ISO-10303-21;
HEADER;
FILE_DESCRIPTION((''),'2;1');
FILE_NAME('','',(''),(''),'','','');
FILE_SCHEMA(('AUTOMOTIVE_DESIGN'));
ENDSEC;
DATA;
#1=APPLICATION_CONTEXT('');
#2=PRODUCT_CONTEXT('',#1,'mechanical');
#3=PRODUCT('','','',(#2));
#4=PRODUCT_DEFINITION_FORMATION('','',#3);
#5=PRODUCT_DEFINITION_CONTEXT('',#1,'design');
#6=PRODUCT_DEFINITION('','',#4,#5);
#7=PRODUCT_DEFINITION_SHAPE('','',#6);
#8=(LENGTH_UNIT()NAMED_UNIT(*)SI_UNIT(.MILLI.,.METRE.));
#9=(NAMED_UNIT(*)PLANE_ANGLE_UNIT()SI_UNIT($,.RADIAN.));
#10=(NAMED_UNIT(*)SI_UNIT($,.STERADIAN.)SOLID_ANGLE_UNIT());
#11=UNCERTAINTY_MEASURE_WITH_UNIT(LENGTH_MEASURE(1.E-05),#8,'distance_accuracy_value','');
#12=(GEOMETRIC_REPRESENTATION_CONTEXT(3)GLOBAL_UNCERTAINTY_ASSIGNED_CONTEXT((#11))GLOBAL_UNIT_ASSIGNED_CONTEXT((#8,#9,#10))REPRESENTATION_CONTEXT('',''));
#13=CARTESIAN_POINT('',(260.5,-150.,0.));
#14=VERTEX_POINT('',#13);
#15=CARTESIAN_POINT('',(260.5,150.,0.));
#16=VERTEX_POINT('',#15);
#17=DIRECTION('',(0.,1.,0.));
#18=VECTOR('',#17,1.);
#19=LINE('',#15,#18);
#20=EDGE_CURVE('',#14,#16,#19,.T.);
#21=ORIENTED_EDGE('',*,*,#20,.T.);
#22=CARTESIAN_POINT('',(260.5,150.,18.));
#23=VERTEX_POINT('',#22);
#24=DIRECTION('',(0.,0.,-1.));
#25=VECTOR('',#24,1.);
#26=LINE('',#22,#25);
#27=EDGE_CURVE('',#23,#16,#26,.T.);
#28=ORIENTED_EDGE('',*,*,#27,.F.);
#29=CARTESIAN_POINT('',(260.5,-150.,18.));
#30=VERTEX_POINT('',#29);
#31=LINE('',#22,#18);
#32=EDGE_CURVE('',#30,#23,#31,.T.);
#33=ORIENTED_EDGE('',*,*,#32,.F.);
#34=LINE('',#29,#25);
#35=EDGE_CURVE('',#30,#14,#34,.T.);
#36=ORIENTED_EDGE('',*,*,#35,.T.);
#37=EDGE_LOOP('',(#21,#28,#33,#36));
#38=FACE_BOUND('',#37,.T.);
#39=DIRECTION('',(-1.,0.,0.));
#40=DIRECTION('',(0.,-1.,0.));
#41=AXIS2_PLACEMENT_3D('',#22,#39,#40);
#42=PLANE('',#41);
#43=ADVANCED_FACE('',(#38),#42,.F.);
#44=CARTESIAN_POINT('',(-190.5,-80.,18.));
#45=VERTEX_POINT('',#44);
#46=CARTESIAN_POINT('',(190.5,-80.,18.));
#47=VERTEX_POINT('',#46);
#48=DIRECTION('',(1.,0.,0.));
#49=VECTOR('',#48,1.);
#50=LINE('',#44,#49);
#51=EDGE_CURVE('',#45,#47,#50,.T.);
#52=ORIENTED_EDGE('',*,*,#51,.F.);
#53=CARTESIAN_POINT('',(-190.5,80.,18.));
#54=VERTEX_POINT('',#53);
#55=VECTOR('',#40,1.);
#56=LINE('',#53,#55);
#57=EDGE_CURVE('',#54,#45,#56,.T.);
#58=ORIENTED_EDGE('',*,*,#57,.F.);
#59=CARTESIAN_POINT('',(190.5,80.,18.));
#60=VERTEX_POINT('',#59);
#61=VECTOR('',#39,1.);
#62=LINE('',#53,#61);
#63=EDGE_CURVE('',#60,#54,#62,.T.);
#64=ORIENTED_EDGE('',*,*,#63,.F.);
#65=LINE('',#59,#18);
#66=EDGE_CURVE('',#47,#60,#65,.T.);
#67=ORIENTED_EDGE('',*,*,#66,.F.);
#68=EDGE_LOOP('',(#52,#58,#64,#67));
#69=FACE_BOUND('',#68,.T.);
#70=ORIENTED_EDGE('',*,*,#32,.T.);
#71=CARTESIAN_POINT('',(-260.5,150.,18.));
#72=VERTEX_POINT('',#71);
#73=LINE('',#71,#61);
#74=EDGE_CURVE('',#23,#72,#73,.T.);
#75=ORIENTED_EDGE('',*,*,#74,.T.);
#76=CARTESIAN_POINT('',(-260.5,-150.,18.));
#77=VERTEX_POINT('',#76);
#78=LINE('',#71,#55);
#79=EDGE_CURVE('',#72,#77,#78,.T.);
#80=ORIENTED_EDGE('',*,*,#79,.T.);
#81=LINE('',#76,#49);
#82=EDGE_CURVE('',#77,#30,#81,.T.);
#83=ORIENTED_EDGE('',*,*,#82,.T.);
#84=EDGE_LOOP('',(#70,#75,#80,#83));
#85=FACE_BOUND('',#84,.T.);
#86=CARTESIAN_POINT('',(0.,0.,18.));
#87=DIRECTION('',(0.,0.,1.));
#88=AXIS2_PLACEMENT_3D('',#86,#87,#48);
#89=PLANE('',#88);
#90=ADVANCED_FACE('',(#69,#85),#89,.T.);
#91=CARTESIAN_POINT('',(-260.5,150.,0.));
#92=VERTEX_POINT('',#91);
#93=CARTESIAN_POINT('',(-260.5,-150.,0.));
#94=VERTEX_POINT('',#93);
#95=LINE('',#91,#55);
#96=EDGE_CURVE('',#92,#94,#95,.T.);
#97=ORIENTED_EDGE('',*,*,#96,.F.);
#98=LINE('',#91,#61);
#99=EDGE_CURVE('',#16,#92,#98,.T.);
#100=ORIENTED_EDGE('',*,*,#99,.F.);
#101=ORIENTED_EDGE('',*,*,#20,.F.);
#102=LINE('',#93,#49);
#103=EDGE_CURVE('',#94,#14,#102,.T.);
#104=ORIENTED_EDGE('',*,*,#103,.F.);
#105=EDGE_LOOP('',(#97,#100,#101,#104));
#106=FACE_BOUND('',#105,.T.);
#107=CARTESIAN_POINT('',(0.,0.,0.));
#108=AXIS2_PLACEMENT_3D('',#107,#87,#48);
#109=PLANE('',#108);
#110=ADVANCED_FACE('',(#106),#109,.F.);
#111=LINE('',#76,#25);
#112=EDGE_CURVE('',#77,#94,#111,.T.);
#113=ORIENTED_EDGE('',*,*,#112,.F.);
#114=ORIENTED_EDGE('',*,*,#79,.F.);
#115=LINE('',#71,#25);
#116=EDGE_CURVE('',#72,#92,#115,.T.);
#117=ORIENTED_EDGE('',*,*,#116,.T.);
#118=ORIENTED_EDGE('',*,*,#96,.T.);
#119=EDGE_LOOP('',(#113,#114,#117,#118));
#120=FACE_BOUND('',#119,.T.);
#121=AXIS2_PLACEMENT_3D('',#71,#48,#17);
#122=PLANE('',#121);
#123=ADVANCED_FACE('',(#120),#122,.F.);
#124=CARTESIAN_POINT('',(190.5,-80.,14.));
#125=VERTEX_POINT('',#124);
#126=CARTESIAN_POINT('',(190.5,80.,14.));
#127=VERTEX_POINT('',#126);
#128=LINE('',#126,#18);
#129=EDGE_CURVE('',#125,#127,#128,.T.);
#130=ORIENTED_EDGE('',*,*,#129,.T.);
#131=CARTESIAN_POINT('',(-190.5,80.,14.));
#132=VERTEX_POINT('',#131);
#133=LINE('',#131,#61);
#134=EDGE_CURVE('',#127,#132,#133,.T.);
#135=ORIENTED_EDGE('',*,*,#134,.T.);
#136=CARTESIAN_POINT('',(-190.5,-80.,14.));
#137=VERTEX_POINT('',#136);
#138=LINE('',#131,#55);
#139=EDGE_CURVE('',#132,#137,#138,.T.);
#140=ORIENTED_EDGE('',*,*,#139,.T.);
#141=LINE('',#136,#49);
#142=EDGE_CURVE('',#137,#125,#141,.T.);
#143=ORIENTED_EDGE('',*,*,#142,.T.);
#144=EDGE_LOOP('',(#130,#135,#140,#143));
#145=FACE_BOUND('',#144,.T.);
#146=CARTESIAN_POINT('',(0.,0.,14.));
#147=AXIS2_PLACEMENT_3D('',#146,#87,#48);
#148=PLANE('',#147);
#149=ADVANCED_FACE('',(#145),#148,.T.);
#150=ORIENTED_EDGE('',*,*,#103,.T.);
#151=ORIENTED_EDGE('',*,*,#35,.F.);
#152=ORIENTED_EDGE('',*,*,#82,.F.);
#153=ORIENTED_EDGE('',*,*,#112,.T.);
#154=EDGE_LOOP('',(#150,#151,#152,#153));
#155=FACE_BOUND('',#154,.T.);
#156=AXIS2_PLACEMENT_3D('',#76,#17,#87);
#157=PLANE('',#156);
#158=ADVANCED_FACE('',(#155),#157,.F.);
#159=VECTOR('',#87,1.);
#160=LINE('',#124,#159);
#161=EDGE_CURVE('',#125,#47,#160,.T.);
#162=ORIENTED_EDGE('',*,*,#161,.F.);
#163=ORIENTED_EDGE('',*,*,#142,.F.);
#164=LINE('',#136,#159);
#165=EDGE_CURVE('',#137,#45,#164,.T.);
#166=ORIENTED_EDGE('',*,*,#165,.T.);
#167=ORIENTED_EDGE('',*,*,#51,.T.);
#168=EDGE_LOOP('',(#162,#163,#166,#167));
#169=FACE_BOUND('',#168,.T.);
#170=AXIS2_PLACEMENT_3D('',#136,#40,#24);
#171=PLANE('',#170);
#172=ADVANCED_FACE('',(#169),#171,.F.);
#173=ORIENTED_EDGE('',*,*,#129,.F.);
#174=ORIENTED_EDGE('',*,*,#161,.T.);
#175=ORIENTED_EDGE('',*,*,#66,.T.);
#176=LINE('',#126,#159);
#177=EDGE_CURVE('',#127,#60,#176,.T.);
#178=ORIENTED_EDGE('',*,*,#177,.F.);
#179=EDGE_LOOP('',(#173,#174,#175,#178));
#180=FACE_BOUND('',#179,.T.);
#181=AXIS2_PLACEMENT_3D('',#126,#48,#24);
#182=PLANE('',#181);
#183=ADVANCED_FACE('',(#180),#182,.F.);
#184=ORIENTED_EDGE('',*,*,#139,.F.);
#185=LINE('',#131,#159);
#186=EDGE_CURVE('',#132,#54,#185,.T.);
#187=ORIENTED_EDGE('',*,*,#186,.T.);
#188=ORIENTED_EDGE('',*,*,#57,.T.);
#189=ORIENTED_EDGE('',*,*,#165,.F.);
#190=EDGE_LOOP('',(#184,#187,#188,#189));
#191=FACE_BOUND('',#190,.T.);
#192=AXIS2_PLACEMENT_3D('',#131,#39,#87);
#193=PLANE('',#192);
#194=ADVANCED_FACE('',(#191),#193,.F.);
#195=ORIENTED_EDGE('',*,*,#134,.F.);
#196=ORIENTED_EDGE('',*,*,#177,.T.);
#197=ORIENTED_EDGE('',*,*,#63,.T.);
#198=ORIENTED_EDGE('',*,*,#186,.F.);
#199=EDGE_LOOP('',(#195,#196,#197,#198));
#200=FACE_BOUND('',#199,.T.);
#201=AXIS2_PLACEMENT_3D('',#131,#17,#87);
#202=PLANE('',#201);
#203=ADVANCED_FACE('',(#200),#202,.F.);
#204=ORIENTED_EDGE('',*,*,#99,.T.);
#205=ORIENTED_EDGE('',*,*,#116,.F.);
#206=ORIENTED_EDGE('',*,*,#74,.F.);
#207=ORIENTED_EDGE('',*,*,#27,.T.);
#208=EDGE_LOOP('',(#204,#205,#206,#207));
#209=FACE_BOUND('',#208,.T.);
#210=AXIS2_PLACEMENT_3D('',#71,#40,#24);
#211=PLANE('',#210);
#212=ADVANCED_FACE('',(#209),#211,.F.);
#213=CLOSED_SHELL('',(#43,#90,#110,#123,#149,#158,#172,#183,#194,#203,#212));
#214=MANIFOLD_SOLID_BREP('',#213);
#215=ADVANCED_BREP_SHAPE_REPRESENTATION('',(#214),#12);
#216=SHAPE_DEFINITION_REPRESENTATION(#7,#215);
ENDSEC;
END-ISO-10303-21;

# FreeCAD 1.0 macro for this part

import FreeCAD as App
import Part
import Sketcher

V = App.Vector
Q = App.Units.Quantity


def add_polygon(sketch, points):
    """Adds a closed chain of lines whose ends are joined by coincident constraints."""
    first, n = sketch.GeometryCount, len(points)
    for a, b in zip(points, points[1:] + points[:1]):
        sketch.addGeometry(Part.LineSegment(App.Vector(*a, 0), App.Vector(*b, 0)), False)
    for i in range(n):
        sketch.addConstraint(Sketcher.Constraint("Coincident", first + i, 2, first + (i + 1) % n, 1))

doc = App.newDocument("Part")
body = doc.addObject("PartDesign::Body", "Body")

sketch1 = body.newObject("Sketcher::SketchObject", "Sketch")
sketch1.AttachmentSupport = (doc.getObject("XY_Plane"), [""])
sketch1.MapMode = "FlatFace"
add_polygon(sketch1, [(-260, 150), (-260, -150), (260, -150), (260, 150)])
sketch1.addConstraint(Sketcher.Constraint("Vertical", 0))
sketch1.addConstraint(Sketcher.Constraint("Horizontal", 1))
sketch1.addConstraint(Sketcher.Constraint("Vertical", 2))
sketch1.addConstraint(Sketcher.Constraint("Horizontal", 3))
sketch1.addConstraint(Sketcher.Constraint("Symmetric", 0, 2, 2, 2, -1, 1))
sketch1.addConstraint(Sketcher.Constraint("DistanceX", 1, 1, 1, 2, Q("521 mm")))
sketch1.addConstraint(Sketcher.Constraint("DistanceY", 0, 2, 0, 1, Q("300 mm")))
pad1 = body.newObject("PartDesign::Pad", "Pad")
pad1.Profile = sketch1
pad1.Length = 18

sketch2 = body.newObject("Sketcher::SketchObject", "Sketch001")
sketch2.AttachmentSupport = (doc.getObject("XY_Plane"), [""])
sketch2.MapMode = "FlatFace"
sketch2.AttachmentOffset = App.Placement(V(0, 0, 18), App.Rotation())
add_polygon(sketch2, [(-190, 80), (-190, -80), (190, -80), (190, 80)])
sketch2.addConstraint(Sketcher.Constraint("Vertical", 0))
sketch2.addConstraint(Sketcher.Constraint("Horizontal", 1))
sketch2.addConstraint(Sketcher.Constraint("Vertical", 2))
sketch2.addConstraint(Sketcher.Constraint("Horizontal", 3))
sketch2.addConstraint(Sketcher.Constraint("Symmetric", 0, 2, 2, 2, -1, 1))
sketch2.addConstraint(Sketcher.Constraint("DistanceX", 1, 1, 1, 2, Q("381 mm")))
sketch2.addConstraint(Sketcher.Constraint("DistanceY", 0, 2, 0, 1, Q("160 mm")))
pocket1 = body.newObject("PartDesign::Pocket", "Pocket")
pocket1.Profile = sketch2
pocket1.Length = 4

doc.recompute()
